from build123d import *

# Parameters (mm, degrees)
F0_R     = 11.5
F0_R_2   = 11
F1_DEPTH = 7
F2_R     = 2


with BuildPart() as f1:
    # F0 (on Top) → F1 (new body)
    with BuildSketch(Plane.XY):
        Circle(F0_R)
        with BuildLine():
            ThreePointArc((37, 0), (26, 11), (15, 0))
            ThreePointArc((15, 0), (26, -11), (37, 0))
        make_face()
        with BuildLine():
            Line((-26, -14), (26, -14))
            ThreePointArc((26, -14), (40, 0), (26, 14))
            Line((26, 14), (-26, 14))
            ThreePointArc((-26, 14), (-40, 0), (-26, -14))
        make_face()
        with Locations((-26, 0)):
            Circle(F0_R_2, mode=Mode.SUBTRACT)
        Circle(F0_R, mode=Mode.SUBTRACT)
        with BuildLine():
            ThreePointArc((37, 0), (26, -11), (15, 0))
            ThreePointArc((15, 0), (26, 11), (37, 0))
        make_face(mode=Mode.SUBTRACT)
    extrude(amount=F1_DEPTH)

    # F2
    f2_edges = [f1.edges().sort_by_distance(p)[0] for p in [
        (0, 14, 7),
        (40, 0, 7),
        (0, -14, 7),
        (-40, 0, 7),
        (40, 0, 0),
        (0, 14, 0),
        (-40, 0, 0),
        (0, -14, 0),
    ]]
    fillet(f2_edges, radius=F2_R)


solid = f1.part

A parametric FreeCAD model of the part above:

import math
import FreeCAD as App
import Part
import Sketcher

V = App.Vector


def edges_at(feature, points):
    """Names of the edges that pass closest to the given points."""
    edges = feature.Shape.Edges
    near = lambda p: min(range(len(edges)), key=lambda i: edges[i].distToShape(Part.Vertex(*p))[0])
    return sorted({f"Edge{near(p) + 1}" for p in points})

doc = App.newDocument("Part")
params = doc.addObject("Spreadsheet::Sheet", "Params")
for row, (alias, value) in enumerate([
    ("sketch1_diameter", "22 mm"),
    ("sketch1_diameter2", "23 mm"),
    ("sketch1_radius", "14 mm"),
    ("sketch1_width", "52 mm"),
    ("pad1_length", "7 mm"),
    ("fillet_radius", "2 mm"),
], start=1):
    params.set(f"A{row}", alias)
    params.set(f"B{row}", "=" + value)
    params.setAlias(f"B{row}", alias)

body = doc.addObject("PartDesign::Body", "Body")

sketch1 = doc.addObject("Sketcher::SketchObject", "Sketch")
body.addObject(sketch1)
sketch1.AttachmentSupport = (doc.XY_Plane, [""])
sketch1.MapMode = "FlatFace"
sketch1.addGeometry([
    Part.LineSegment(V(-26, -14, 0), V(26, -14, 0)),
    Part.ArcOfCircle(Part.Circle(V(26, 0, 0), V(0, 0, 1), 14), math.radians(-90), math.radians(90)),
    Part.LineSegment(V(26, 14, 0), V(-26, 14, 0)),
    Part.ArcOfCircle(Part.Circle(V(-26, 0, 0), V(0, 0, 1), 14), math.radians(90), math.radians(270)),
    Part.Circle(V(-26, 0, 0), V(0, 0, 1), 11),
    Part.Circle(V(0, 0, 0), V(0, 0, 1), 12),
    Part.Circle(V(26, 0, 0), V(0, 0, 1), 11),
], False)
sketch1.addConstraint([
    Sketcher.Constraint("Tangent", 0, 2, 1, 1),
    Sketcher.Constraint("Tangent", 1, 2, 2, 1),
    Sketcher.Constraint("Tangent", 2, 2, 3, 1),
    Sketcher.Constraint("Tangent", 3, 2, 0, 1),
    Sketcher.Constraint("Horizontal", 0),
    Sketcher.Constraint("Horizontal", 2),
    Sketcher.Constraint("Coincident", 5, 3, -1, 1),
    Sketcher.Constraint("Coincident", 4, 3, 3, 3),
    Sketcher.Constraint("Coincident", 6, 3, 1, 3),
    Sketcher.Constraint("Equal", 4, 6),
    Sketcher.Constraint("Symmetric", 1, 3, 3, 3, -1, 1),
    Sketcher.Constraint("Diameter", 4, 22.0),
    Sketcher.Constraint("Diameter", 5, 23.0),
    Sketcher.Constraint("Radius", 1, 14.0),
    Sketcher.Constraint("DistanceX", 0, 1, 0, 2, 52.0),
])
sketch1.setExpression("Constraints[11]", "Params.sketch1_diameter")
sketch1.setExpression("Constraints[12]", "Params.sketch1_diameter2")
sketch1.setExpression("Constraints[13]", "Params.sketch1_radius")
sketch1.setExpression("Constraints[14]", "Params.sketch1_width")
pad1 = doc.addObject("PartDesign::Pad", "Pad")
body.addObject(pad1)
pad1.Profile = sketch1
pad1.setExpression("Length", "Params.pad1_length")
doc.recompute()

fillet = doc.addObject("PartDesign::Fillet", "Fillet")
body.addObject(fillet)
fillet.Base = (pad1, edges_at(pad1, [
    (0, 14, 7),
    (40, 0, 7),
    (0, -14, 7),
    (-40, 0, 7),
    (40, 0, 0),
    (0, 14, 0),
    (-40, 0, 0),
    (0, -14, 0),
]))
fillet.setExpression("Radius", "Params.fillet_radius")

doc.recompute()
